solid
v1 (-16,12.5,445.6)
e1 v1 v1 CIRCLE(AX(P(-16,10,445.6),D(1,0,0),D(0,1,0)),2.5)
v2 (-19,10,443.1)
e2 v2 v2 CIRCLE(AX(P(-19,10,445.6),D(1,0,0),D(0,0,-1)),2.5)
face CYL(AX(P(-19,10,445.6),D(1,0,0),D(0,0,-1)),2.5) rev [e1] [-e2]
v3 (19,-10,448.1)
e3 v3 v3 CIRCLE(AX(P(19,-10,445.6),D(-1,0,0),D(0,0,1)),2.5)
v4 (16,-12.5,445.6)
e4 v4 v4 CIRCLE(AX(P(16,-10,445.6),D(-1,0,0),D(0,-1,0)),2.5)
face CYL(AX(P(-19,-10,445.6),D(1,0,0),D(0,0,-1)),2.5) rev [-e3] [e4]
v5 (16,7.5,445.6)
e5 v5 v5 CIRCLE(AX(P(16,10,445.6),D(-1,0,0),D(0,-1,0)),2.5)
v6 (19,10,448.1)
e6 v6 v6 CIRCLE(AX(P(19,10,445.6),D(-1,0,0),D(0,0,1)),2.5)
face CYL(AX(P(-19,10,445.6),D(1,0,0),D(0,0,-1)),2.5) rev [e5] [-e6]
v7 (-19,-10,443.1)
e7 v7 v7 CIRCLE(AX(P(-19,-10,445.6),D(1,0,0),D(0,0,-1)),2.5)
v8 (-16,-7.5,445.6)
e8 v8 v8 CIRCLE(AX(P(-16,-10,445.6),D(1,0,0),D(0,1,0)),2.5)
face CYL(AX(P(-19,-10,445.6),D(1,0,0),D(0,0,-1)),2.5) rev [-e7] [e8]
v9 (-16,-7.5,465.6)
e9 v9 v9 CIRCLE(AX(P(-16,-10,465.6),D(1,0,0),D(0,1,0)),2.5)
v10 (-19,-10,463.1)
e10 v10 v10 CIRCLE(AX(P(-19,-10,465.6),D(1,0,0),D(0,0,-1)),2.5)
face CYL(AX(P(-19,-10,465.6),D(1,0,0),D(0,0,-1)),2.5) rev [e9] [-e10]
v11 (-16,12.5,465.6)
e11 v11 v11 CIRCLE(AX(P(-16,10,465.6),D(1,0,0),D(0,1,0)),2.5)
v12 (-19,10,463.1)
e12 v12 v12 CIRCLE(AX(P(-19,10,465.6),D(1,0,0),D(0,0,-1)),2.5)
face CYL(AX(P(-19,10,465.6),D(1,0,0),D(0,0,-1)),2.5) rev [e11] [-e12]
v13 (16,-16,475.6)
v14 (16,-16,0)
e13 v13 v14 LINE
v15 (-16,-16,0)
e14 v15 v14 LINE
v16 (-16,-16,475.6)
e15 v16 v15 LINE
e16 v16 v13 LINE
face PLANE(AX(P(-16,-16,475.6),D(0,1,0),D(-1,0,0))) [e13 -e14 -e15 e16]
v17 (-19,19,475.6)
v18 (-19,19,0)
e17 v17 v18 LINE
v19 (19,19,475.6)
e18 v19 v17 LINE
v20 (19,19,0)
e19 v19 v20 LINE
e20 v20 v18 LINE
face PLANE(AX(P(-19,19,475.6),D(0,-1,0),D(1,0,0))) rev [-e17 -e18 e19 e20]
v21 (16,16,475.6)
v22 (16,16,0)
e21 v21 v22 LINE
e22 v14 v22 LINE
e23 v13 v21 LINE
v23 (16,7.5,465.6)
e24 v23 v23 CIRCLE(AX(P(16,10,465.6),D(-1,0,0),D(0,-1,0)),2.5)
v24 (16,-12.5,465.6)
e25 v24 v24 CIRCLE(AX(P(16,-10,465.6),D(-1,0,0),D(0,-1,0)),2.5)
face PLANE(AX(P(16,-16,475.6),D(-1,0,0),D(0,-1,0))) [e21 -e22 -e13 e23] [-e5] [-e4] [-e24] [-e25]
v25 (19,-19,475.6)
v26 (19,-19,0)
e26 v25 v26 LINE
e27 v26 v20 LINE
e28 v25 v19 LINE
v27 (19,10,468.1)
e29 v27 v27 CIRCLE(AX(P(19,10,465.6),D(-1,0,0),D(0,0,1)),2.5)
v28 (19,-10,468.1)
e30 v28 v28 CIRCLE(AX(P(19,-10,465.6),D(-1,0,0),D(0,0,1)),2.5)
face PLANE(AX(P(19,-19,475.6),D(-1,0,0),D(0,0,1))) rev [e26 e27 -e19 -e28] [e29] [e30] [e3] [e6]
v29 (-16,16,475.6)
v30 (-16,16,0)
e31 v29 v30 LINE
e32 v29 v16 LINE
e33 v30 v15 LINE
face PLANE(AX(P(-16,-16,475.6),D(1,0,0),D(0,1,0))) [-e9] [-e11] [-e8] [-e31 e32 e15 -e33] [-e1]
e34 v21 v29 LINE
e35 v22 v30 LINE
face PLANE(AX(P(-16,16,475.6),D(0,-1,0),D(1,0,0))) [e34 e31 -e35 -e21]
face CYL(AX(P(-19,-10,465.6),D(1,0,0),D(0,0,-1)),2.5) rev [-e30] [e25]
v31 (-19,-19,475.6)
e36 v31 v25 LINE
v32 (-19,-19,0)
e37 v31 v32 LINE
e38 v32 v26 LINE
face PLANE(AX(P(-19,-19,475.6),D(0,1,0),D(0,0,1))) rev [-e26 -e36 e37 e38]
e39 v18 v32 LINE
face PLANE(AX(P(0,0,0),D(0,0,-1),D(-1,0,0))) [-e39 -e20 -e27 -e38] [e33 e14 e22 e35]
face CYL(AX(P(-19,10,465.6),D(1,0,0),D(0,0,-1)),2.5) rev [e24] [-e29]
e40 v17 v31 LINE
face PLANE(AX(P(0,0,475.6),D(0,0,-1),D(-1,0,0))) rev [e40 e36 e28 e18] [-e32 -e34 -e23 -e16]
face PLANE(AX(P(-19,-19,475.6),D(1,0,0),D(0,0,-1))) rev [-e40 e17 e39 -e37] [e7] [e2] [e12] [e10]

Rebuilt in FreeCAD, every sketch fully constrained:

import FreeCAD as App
import Part
import Sketcher


def add_polygon(sketch, points):
    """Adds a closed chain of lines whose ends are joined by coincident constraints."""
    first, n = sketch.GeometryCount, len(points)
    for a, b in zip(points, points[1:] + points[:1]):
        sketch.addGeometry(Part.LineSegment(App.Vector(*a, 0), App.Vector(*b, 0)), False)
    for i in range(n):
        sketch.addConstraint(Sketcher.Constraint("Coincident", first + i, 2, first + (i + 1) % n, 1))

doc = App.newDocument("Part")
params = doc.addObject("Spreadsheet::Sheet", "Params")
for row, (alias, value) in enumerate([
    ("sketch1_width", "38 mm"),
    ("sketch1_width2", "32 mm"),
    ("pad1_length", "475.6 mm"),
    ("sketch2_diameter", "5 mm"),
], start=1):
    params.set(f"A{row}", alias)
    params.set(f"B{row}", "=" + value)
    params.setAlias(f"B{row}", alias)

body = doc.addObject("PartDesign::Body", "Body")

# Sketch on XY plane
sketch1 = doc.addObject("Sketcher::SketchObject", "Sketch")
body.addObject(sketch1)
sketch1.AttachmentSupport = (doc.XY_Plane, [""])
sketch1.MapMode = "FlatFace"
add_polygon(sketch1, [(-19, 19), (-19, -19), (19, -19), (19, 19)])  # lines 0-3
add_polygon(sketch1, [(16, -16), (-16, -16), (-16, 16), (16, 16)])  # lines 4-7
sketch1.addConstraint([
    Sketcher.Constraint("Vertical", 0),
    Sketcher.Constraint("Horizontal", 1),
    Sketcher.Constraint("Vertical", 2),
    Sketcher.Constraint("Horizontal", 3),
    Sketcher.Constraint("Horizontal", 4),
    Sketcher.Constraint("Vertical", 5),
    Sketcher.Constraint("Horizontal", 6),
    Sketcher.Constraint("Vertical", 7),
    Sketcher.Constraint("Symmetric", 0, 2, 2, 2, -1, 1),
    Sketcher.Constraint("Symmetric", 4, 2, 6, 2, -1, 1),
    Sketcher.Constraint("Equal", 3, 0),
    Sketcher.Constraint("Equal", 6, 5),
    Sketcher.Constraint("DistanceX", 1, 1, 1, 2, 38.0),
    Sketcher.Constraint("DistanceX", 4, 2, 4, 1, 32.0),
])
sketch1.setExpression("Constraints[20]", "Params.sketch1_width")
sketch1.setExpression("Constraints[21]", "Params.sketch1_width2")
pad1 = doc.addObject("PartDesign::Pad", "Pad")
body.addObject(pad1)
pad1.Profile = sketch1
pad1.setExpression("Length", "Params.pad1_length")

# Sketch on YZ plane
sketch2 = doc.addObject("Sketcher::SketchObject", "Sketch001")
body.addObject(sketch2)
sketch2.AttachmentSupport = (doc.YZ_Plane, [""])
sketch2.MapMode = "FlatFace"
sketch2.AttachmentOffset = App.Placement(App.Vector(0, 0, 19), App.Rotation())
sketch2.addGeometry([
    Part.Circle(App.Vector(10, 465.6, 0), App.Vector(0, 0, 1), 2.5),
    Part.Circle(App.Vector(10, 445.6, 0), App.Vector(0, 0, 1), 2.5),
    Part.Circle(App.Vector(-10, 445.6, 0), App.Vector(0, 0, 1), 2.5),
    Part.Circle(App.Vector(-10, 465.6, 0), App.Vector(0, 0, 1), 2.5),
], False)
sketch2.addConstraint([
    Sketcher.Constraint("Equal", 0, 1),
    Sketcher.Constraint("Equal", 1, 2),
    Sketcher.Constraint("Equal", 2, 3),
    Sketcher.Constraint("Symmetric", 1, 3, 2, 3, -2),
    Sketcher.Constraint("Symmetric", 0, 3, 3, 3, -2),
    Sketcher.Constraint("Vertical", 0, 3, 1, 3),
    Sketcher.Constraint("Diameter", 0, 5.0),
    Sketcher.Constraint("DistanceX", -1, 1, 0, 3, 10.0),
    Sketcher.Constraint("DistanceY", 1, 3, 0, 3, 20.0),
    Sketcher.Constraint("DistanceY", -1, 1, 0, 3, 465.6),
])
sketch2.setExpression("Constraints[6]", "Params.sketch2_diameter")
pocket1 = doc.addObject("PartDesign::Pocket", "Pocket")
body.addObject(pocket1)
pocket1.Profile = sketch2
pocket1.Type = "ThroughAll"
pocket1.Midplane = True

doc.recompute()
